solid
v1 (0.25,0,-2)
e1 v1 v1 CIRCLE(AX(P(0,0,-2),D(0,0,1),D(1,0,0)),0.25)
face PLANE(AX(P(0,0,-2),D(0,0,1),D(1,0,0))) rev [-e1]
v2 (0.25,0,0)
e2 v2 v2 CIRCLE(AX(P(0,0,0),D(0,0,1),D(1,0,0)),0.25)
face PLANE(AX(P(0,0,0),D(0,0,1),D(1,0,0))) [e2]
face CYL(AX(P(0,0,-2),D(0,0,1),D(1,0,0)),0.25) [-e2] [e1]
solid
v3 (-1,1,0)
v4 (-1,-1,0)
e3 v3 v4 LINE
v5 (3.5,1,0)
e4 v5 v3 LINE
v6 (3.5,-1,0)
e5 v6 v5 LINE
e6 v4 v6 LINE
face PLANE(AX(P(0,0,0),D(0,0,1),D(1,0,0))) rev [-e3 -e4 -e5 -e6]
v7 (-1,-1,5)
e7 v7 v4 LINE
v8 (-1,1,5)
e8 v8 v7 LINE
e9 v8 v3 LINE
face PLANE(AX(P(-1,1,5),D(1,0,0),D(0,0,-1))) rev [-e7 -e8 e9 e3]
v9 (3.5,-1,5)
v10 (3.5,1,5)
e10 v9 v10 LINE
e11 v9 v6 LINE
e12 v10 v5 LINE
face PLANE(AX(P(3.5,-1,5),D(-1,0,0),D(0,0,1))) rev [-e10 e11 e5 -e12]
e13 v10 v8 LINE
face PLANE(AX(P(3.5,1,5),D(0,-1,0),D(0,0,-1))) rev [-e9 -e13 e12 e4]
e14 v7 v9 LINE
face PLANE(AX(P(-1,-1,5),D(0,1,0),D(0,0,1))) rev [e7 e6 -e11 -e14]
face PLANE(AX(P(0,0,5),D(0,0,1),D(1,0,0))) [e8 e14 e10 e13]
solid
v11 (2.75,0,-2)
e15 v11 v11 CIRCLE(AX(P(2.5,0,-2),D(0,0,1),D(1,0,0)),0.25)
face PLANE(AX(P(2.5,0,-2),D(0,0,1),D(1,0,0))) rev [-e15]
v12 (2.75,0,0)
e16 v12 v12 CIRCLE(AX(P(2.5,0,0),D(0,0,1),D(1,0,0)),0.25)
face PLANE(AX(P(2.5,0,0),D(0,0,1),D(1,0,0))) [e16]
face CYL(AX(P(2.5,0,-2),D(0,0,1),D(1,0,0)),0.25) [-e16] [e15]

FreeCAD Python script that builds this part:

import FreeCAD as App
import Part
import Sketcher
Q = App.Units.Quantity

doc = App.newDocument("Part")
params = doc.addObject("Spreadsheet::Sheet", "Params")
for row, (alias, value) in enumerate([
    ("sketch1_height", "2 mm"),
    ("sketch1_width", "4.5 mm"),
    ("pad1_length", "5 mm"),
    ("sketch2_diameter", "0.5 mm"),
    ("pad2_length", "2 mm"),
    ("sketch3_diameter", "0.5 mm"),
    ("pad3_length", "2 mm"),
], start=1):
    params.set(f"A{row}", alias)
    params.set(f"B{row}", "=" + value)
    params.setAlias(f"B{row}", alias)

body = doc.addObject("PartDesign::Body", "Body")

sketch1 = body.newObject("Sketcher::SketchObject", "Sketch")
sketch1.AttachmentSupport = (doc.getObject("XY_Plane"), [""])
sketch1.MapMode = "FlatFace"
sketch1.addGeometry(Part.LineSegment(App.Vector(-1, 1, 0), App.Vector(-1, -1, 0)), False)
sketch1.addGeometry(Part.LineSegment(App.Vector(-1, -1, 0), App.Vector(3.5, -1, 0)), False)
sketch1.addGeometry(Part.LineSegment(App.Vector(3.5, -1, 0), App.Vector(3.5, 1, 0)), False)
sketch1.addGeometry(Part.LineSegment(App.Vector(3.5, 1, 0), App.Vector(-1, 1, 0)), False)
sketch1.addConstraint(Sketcher.Constraint("Coincident", 0, 2, 1, 1))
sketch1.addConstraint(Sketcher.Constraint("Coincident", 1, 2, 2, 1))
sketch1.addConstraint(Sketcher.Constraint("Coincident", 2, 2, 3, 1))
sketch1.addConstraint(Sketcher.Constraint("Coincident", 3, 2, 0, 1))
sketch1.addConstraint(Sketcher.Constraint("Vertical", 0))
sketch1.addConstraint(Sketcher.Constraint("Horizontal", 1))
sketch1.addConstraint(Sketcher.Constraint("Vertical", 2))
sketch1.addConstraint(Sketcher.Constraint("Horizontal", 3))
sketch1.addConstraint(Sketcher.Constraint("DistanceY", 0, 2, 0, 1, Q("2 mm")))
sketch1.addConstraint(Sketcher.Constraint("DistanceX", 1, 1, 1, 2, Q("4.5 mm")))
sketch1.addConstraint(Sketcher.Constraint("DistanceX", 0, 2, -1, 1, Q("1 mm")))
sketch1.addConstraint(Sketcher.Constraint("DistanceY", 0, 2, -1, 1, Q("1 mm")))
sketch1.setExpression("Constraints[8]", "Params.sketch1_height")
sketch1.setExpression("Constraints[9]", "Params.sketch1_width")
pad1 = body.newObject("PartDesign::Pad", "Pad")
pad1.Profile = sketch1
pad1.setExpression("Length", "Params.pad1_length")
body2 = doc.addObject("PartDesign::Body", "Body001")

sketch2 = body2.newObject("Sketcher::SketchObject", "Sketch001")
sketch2.AttachmentSupport = (doc.getObject("XY_Plane001"), [""])
sketch2.MapMode = "FlatFace"
sketch2.addGeometry(Part.Circle(App.Vector(0, 0, 0), App.Vector(0, 0, 1), 0.25), False)
sketch2.addConstraint(Sketcher.Constraint("Coincident", 0, 3, -1, 1))
sketch2.addConstraint(Sketcher.Constraint("Diameter", 0, Q("0.5 mm")))
sketch2.setExpression("Constraints[1]", "Params.sketch2_diameter")
pad2 = body2.newObject("PartDesign::Pad", "Pad001")
pad2.Profile = sketch2
pad2.setExpression("Length", "Params.pad2_length")
pad2.Reversed = True
body3 = doc.addObject("PartDesign::Body", "Body002")

sketch3 = body3.newObject("Sketcher::SketchObject", "Sketch002")
sketch3.AttachmentSupport = (doc.getObject("XY_Plane002"), [""])
sketch3.MapMode = "FlatFace"
sketch3.addGeometry(Part.Circle(App.Vector(2.5, 0, 0), App.Vector(0, 0, 1), 0.25), False)
sketch3.addConstraint(Sketcher.Constraint("PointOnObject", 0, 3, -1))
sketch3.addConstraint(Sketcher.Constraint("Diameter", 0, Q("0.5 mm")))
sketch3.addConstraint(Sketcher.Constraint("DistanceX", -1, 1, 0, 3, Q("2.5 mm")))
sketch3.setExpression("Constraints[1]", "Params.sketch3_diameter")
pad3 = body3.newObject("PartDesign::Pad", "Pad002")
pad3.Profile = sketch3
pad3.setExpression("Length", "Params.pad3_length")
pad3.Reversed = True

doc.recompute()
